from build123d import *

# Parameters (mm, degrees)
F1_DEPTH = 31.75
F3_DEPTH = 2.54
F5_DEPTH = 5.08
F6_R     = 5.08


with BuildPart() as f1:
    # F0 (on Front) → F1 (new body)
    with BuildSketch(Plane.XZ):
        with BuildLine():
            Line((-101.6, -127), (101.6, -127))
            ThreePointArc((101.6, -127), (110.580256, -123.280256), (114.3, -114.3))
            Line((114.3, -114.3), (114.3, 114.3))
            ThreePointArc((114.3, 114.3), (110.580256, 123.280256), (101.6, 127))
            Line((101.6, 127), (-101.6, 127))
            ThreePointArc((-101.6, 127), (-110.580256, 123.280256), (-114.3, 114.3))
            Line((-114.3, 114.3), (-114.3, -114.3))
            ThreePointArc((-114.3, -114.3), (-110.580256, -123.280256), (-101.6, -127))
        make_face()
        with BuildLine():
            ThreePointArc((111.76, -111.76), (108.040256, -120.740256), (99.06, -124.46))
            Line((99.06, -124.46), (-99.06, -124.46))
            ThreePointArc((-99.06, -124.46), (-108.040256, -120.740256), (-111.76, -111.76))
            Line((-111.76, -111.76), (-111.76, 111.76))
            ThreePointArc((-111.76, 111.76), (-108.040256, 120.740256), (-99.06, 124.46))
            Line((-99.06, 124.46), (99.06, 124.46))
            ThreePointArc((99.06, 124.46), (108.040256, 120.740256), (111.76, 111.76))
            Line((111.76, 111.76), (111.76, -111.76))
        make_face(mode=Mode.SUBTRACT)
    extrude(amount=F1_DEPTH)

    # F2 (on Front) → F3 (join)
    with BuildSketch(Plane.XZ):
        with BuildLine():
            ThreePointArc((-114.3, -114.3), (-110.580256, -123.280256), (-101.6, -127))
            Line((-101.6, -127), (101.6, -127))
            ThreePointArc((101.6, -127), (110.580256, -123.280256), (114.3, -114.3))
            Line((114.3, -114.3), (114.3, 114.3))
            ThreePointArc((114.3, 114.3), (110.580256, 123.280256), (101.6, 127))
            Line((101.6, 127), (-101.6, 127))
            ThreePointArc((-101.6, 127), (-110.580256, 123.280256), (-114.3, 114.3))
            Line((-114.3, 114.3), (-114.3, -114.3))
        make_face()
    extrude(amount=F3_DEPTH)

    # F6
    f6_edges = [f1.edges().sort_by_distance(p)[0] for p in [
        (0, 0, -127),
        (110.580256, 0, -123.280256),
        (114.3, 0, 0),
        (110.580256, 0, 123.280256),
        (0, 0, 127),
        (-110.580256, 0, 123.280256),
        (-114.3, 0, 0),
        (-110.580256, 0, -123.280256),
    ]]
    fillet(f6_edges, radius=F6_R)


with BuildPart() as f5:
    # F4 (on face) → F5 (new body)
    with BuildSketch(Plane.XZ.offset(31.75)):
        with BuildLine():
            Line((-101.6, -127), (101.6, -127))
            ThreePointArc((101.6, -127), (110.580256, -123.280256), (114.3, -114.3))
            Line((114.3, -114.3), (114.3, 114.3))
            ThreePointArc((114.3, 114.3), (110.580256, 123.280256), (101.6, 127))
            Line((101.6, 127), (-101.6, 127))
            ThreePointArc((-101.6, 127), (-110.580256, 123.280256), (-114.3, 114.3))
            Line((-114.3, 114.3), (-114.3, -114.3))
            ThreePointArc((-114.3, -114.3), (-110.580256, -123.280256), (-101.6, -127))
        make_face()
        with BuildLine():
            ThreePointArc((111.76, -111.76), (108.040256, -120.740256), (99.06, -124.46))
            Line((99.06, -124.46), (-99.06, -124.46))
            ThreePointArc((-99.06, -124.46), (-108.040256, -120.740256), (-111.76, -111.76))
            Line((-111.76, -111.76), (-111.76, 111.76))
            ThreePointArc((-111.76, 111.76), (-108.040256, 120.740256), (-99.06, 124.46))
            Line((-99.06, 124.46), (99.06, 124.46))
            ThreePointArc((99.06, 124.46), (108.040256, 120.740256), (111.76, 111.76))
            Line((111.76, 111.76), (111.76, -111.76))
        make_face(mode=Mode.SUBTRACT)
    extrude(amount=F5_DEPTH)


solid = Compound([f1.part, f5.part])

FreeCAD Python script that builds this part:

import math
import FreeCAD as App
import Part
import Sketcher
Q = App.Units.Quantity


def edges_at(feature, points):
    """Names of the edges that pass closest to the given points."""
    edges = feature.Shape.Edges
    near = lambda p: min(range(len(edges)), key=lambda i: edges[i].distToShape(Part.Vertex(*p))[0])
    return sorted({f"Edge{near(p) + 1}" for p in points})

doc = App.newDocument("Part")
body = doc.addObject("PartDesign::Body", "Body")

# Sketch on XZ plane
sketch1 = body.newObject("Sketcher::SketchObject", "Sketch")
sketch1.AttachmentSupport = (doc.getObject("XZ_Plane"), [""])
sketch1.MapMode = "FlatFace"
sketch1.addGeometry(Part.LineSegment(App.Vector(-101.6, -127, 0), App.Vector(101.6, -127, 0)), False)
sketch1.addGeometry(Part.ArcOfCircle(Part.Circle(App.Vector(101.6, -114.3, 0), App.Vector(0, 0, 1), 12.7), math.radians(-89.999998), math.radians(-0.000002)), False)
sketch1.addGeometry(Part.LineSegment(App.Vector(114.3, -114.3, 0), App.Vector(114.3, 114.3, 0)), False)
sketch1.addGeometry(Part.ArcOfCircle(Part.Circle(App.Vector(101.6, 114.3, 0), App.Vector(0, 0, 1), 12.7), math.radians(0.000002), math.radians(89.999998)), False)
sketch1.addGeometry(Part.LineSegment(App.Vector(101.6, 127, 0), App.Vector(-101.6, 127, 0)), False)
sketch1.addGeometry(Part.ArcOfCircle(Part.Circle(App.Vector(-101.6, 114.3, 0), App.Vector(0, 0, 1), 12.7), math.radians(90.000002), math.radians(179.999998)), False)
sketch1.addGeometry(Part.LineSegment(App.Vector(-114.3, 114.3, 0), App.Vector(-114.3, -114.3, 0)), False)
sketch1.addGeometry(Part.ArcOfCircle(Part.Circle(App.Vector(-101.6, -114.3, 0), App.Vector(0, 0, 1), 12.7), math.radians(-179.999998), math.radians(-90.000002)), False)
sketch1.addGeometry(Part.LineSegment(App.Vector(111.76, 111.76, 0), App.Vector(111.76, -111.76, 0)), False)
sketch1.addGeometry(Part.ArcOfCircle(Part.Circle(App.Vector(99.06, -111.76, 0), App.Vector(0, 0, 1), 12.7), math.radians(-89.999998), math.radians(-0.000002)), False)
sketch1.addGeometry(Part.LineSegment(App.Vector(99.06, -124.46, 0), App.Vector(-99.06, -124.46, 0)), False)
sketch1.addGeometry(Part.ArcOfCircle(Part.Circle(App.Vector(-99.06, -111.76, 0), App.Vector(0, 0, 1), 12.7), math.radians(-179.999998), math.radians(-90.000002)), False)
sketch1.addGeometry(Part.LineSegment(App.Vector(-111.76, -111.76, 0), App.Vector(-111.76, 111.76, 0)), False)
sketch1.addGeometry(Part.ArcOfCircle(Part.Circle(App.Vector(-99.06, 111.76, 0), App.Vector(0, 0, 1), 12.7), math.radians(90.000002), math.radians(179.999998)), False)
sketch1.addGeometry(Part.LineSegment(App.Vector(-99.06, 124.46, 0), App.Vector(99.06, 124.46, 0)), False)
sketch1.addGeometry(Part.ArcOfCircle(Part.Circle(App.Vector(99.06, 111.76, 0), App.Vector(0, 0, 1), 12.7), math.radians(0.000002), math.radians(89.999998)), False)
sketch1.addConstraint(Sketcher.Constraint("Tangent", 0, 2, 1, 1))
sketch1.addConstraint(Sketcher.Constraint("Tangent", 1, 2, 2, 1))
sketch1.addConstraint(Sketcher.Constraint("Tangent", 2, 2, 3, 1))
sketch1.addConstraint(Sketcher.Constraint("Tangent", 3, 2, 4, 1))
sketch1.addConstraint(Sketcher.Constraint("Tangent", 4, 2, 5, 1))
sketch1.addConstraint(Sketcher.Constraint("Tangent", 5, 2, 6, 1))
sketch1.addConstraint(Sketcher.Constraint("Tangent", 6, 2, 7, 1))
sketch1.addConstraint(Sketcher.Constraint("Tangent", 7, 2, 0, 1))
sketch1.addConstraint(Sketcher.Constraint("Tangent", 8, 2, 9, 2))
sketch1.addConstraint(Sketcher.Constraint("Tangent", 9, 1, 10, 1))
sketch1.addConstraint(Sketcher.Constraint("Tangent", 10, 2, 11, 2))
sketch1.addConstraint(Sketcher.Constraint("Tangent", 11, 1, 12, 1))
sketch1.addConstraint(Sketcher.Constraint("Tangent", 12, 2, 13, 2))
sketch1.addConstraint(Sketcher.Constraint("Tangent", 13, 1, 14, 1))
sketch1.addConstraint(Sketcher.Constraint("Tangent", 14, 2, 15, 2))
sketch1.addConstraint(Sketcher.Constraint("Tangent", 15, 1, 8, 1))
sketch1.addConstraint(Sketcher.Constraint("Horizontal", 0))
sketch1.addConstraint(Sketcher.Constraint("Vertical", 2))
sketch1.addConstraint(Sketcher.Constraint("Horizontal", 4))
sketch1.addConstraint(Sketcher.Constraint("Vertical", 6))
sketch1.addConstraint(Sketcher.Constraint("Vertical", 8))
sketch1.addConstraint(Sketcher.Constraint("Horizontal", 10))
sketch1.addConstraint(Sketcher.Constraint("Vertical", 12))
sketch1.addConstraint(Sketcher.Constraint("Horizontal", 14))
sketch1.addConstraint(Sketcher.Constraint("Equal", 1, 3))
sketch1.addConstraint(Sketcher.Constraint("Equal", 3, 5))
sketch1.addConstraint(Sketcher.Constraint("Equal", 5, 7))
sketch1.addConstraint(Sketcher.Constraint("Equal", 7, 9))
sketch1.addConstraint(Sketcher.Constraint("Equal", 9, 11))
sketch1.addConstraint(Sketcher.Constraint("Equal", 11, 13))
sketch1.addConstraint(Sketcher.Constraint("Equal", 13, 15))
sketch1.addConstraint(Sketcher.Constraint("Symmetric", 1, 3, 5, 3, -1, 1))
sketch1.addConstraint(Sketcher.Constraint("Symmetric", 9, 3, 13, 3, -1, 1))
sketch1.addConstraint(Sketcher.Constraint("Radius", 1, Q("0.5 in")))
sketch1.addConstraint(Sketcher.Constraint("DistanceX", 0, 1, 0, 2, Q("8 in")))
sketch1.addConstraint(Sketcher.Constraint("DistanceY", 2, 1, 2, 2, Q("9 in")))
sketch1.addConstraint(Sketcher.Constraint("DistanceX", 10, 2, 10, 1, Q("7.8 in")))
sketch1.addConstraint(Sketcher.Constraint("DistanceY", 8, 2, 8, 1, Q("8.8 in")))
pad1 = body.newObject("PartDesign::Pad", "Pad")
pad1.Profile = sketch1
pad1.Length = Q("1.25 in")

# Sketch on XZ plane
sketch2 = body.newObject("Sketcher::SketchObject", "Sketch001")
sketch2.AttachmentSupport = (doc.getObject("XZ_Plane"), [""])
sketch2.MapMode = "FlatFace"
sketch2.addGeometry(Part.ArcOfCircle(Part.Circle(App.Vector(-101.6, -114.3, 0), App.Vector(0, 0, 1), 12.7), math.radians(-179.999998), math.radians(-90.000002)), False)
sketch2.addGeometry(Part.LineSegment(App.Vector(-101.6, -127, 0), App.Vector(101.6, -127, 0)), False)
sketch2.addGeometry(Part.ArcOfCircle(Part.Circle(App.Vector(101.6, -114.3, 0), App.Vector(0, 0, 1), 12.7), math.radians(-89.999998), math.radians(-0.000002)), False)
sketch2.addGeometry(Part.LineSegment(App.Vector(114.3, -114.3, 0), App.Vector(114.3, 114.3, 0)), False)
sketch2.addGeometry(Part.ArcOfCircle(Part.Circle(App.Vector(101.6, 114.3, 0), App.Vector(0, 0, 1), 12.7), math.radians(0.000002), math.radians(89.999998)), False)
sketch2.addGeometry(Part.LineSegment(App.Vector(101.6, 127, 0), App.Vector(-101.6, 127, 0)), False)
sketch2.addGeometry(Part.ArcOfCircle(Part.Circle(App.Vector(-101.6, 114.3, 0), App.Vector(0, 0, 1), 12.7), math.radians(90.000002), math.radians(179.999998)), False)
sketch2.addGeometry(Part.LineSegment(App.Vector(-114.3, 114.3, 0), App.Vector(-114.3, -114.3, 0)), False)
sketch2.addConstraint(Sketcher.Constraint("Tangent", 0, 2, 1, 1))
sketch2.addConstraint(Sketcher.Constraint("Tangent", 1, 2, 2, 1))
sketch2.addConstraint(Sketcher.Constraint("Tangent", 2, 2, 3, 1))
sketch2.addConstraint(Sketcher.Constraint("Tangent", 3, 2, 4, 1))
sketch2.addConstraint(Sketcher.Constraint("Tangent", 4, 2, 5, 1))
sketch2.addConstraint(Sketcher.Constraint("Tangent", 5, 2, 6, 1))
sketch2.addConstraint(Sketcher.Constraint("Tangent", 6, 2, 7, 1))
sketch2.addConstraint(Sketcher.Constraint("Tangent", 7, 2, 0, 1))
sketch2.addConstraint(Sketcher.Constraint("Horizontal", 1))
sketch2.addConstraint(Sketcher.Constraint("Vertical", 3))
sketch2.addConstraint(Sketcher.Constraint("Horizontal", 5))
sketch2.addConstraint(Sketcher.Constraint("Vertical", 7))
sketch2.addConstraint(Sketcher.Constraint("Equal", 0, 2))
sketch2.addConstraint(Sketcher.Constraint("Equal", 2, 4))
sketch2.addConstraint(Sketcher.Constraint("Equal", 4, 6))
sketch2.addConstraint(Sketcher.Constraint("Symmetric", 0, 3, 4, 3, -1, 1))
sketch2.addConstraint(Sketcher.Constraint("Radius", 0, Q("0.5 in")))
sketch2.addConstraint(Sketcher.Constraint("DistanceX", 1, 1, 1, 2, Q("8 in")))
sketch2.addConstraint(Sketcher.Constraint("DistanceY", 3, 1, 3, 2, Q("9 in")))
pad2 = body.newObject("PartDesign::Pad", "Pad001")
pad2.Profile = sketch2
pad2.Length = Q("0.1 in")
doc.recompute()

fillet = body.newObject("PartDesign::Fillet", "Fillet")
fillet.Base = (pad2, edges_at(pad2, [
    (0, 0, -127),
    (110.58, 0, -123.28),
    (114.3, 0, 0),
    (110.58, 0, 123.28),
    (0, 0, 127),
    (-110.58, 0, 123.28),
    (-114.3, 0, 0),
    (-110.58, 0, -123.28),
]))
fillet.Radius = Q("0.2 in")
body2 = doc.addObject("PartDesign::Body", "Body001")

# Sketch on XZ plane
sketch3 = body2.newObject("Sketcher::SketchObject", "Sketch002")
sketch3.AttachmentSupport = (doc.getObject("XZ_Plane001"), [""])
sketch3.MapMode = "FlatFace"
sketch3.AttachmentOffset = App.Placement(App.Vector(0, 0, 1.25 * 25.4), App.Rotation())
sketch3.addGeometry(Part.LineSegment(App.Vector(-101.6, -127, 0), App.Vector(101.6, -127, 0)), False)
sketch3.addGeometry(Part.ArcOfCircle(Part.Circle(App.Vector(101.6, -114.3, 0), App.Vector(0, 0, 1), 12.7), math.radians(-89.999998), math.radians(-0.000002)), False)
sketch3.addGeometry(Part.LineSegment(App.Vector(114.3, -114.3, 0), App.Vector(114.3, 114.3, 0)), False)
sketch3.addGeometry(Part.ArcOfCircle(Part.Circle(App.Vector(101.6, 114.3, 0), App.Vector(0, 0, 1), 12.7), math.radians(0.000002), math.radians(89.999998)), False)
sketch3.addGeometry(Part.LineSegment(App.Vector(101.6, 127, 0), App.Vector(-101.6, 127, 0)), False)
sketch3.addGeometry(Part.ArcOfCircle(Part.Circle(App.Vector(-101.6, 114.3, 0), App.Vector(0, 0, 1), 12.7), math.radians(90.000002), math.radians(179.999998)), False)
sketch3.addGeometry(Part.LineSegment(App.Vector(-114.3, 114.3, 0), App.Vector(-114.3, -114.3, 0)), False)
sketch3.addGeometry(Part.ArcOfCircle(Part.Circle(App.Vector(-101.6, -114.3, 0), App.Vector(0, 0, 1), 12.7), math.radians(-179.999998), math.radians(-90.000002)), False)
sketch3.addGeometry(Part.LineSegment(App.Vector(111.76, 111.76, 0), App.Vector(111.76, -111.76, 0)), False)
sketch3.addGeometry(Part.ArcOfCircle(Part.Circle(App.Vector(99.06, -111.76, 0), App.Vector(0, 0, 1), 12.7), math.radians(-89.999998), math.radians(-0.000002)), False)
sketch3.addGeometry(Part.LineSegment(App.Vector(99.06, -124.46, 0), App.Vector(-99.06, -124.46, 0)), False)
sketch3.addGeometry(Part.ArcOfCircle(Part.Circle(App.Vector(-99.06, -111.76, 0), App.Vector(0, 0, 1), 12.7), math.radians(-179.999998), math.radians(-90.000002)), False)
sketch3.addGeometry(Part.LineSegment(App.Vector(-111.76, -111.76, 0), App.Vector(-111.76, 111.76, 0)), False)
sketch3.addGeometry(Part.ArcOfCircle(Part.Circle(App.Vector(-99.06, 111.76, 0), App.Vector(0, 0, 1), 12.7), math.radians(90.000002), math.radians(179.999998)), False)
sketch3.addGeometry(Part.LineSegment(App.Vector(-99.06, 124.46, 0), App.Vector(99.06, 124.46, 0)), False)
sketch3.addGeometry(Part.ArcOfCircle(Part.Circle(App.Vector(99.06, 111.76, 0), App.Vector(0, 0, 1), 12.7), math.radians(0.000002), math.radians(89.999998)), False)
sketch3.addConstraint(Sketcher.Constraint("Tangent", 0, 2, 1, 1))
sketch3.addConstraint(Sketcher.Constraint("Tangent", 1, 2, 2, 1))
sketch3.addConstraint(Sketcher.Constraint("Tangent", 2, 2, 3, 1))
sketch3.addConstraint(Sketcher.Constraint("Tangent", 3, 2, 4, 1))
sketch3.addConstraint(Sketcher.Constraint("Tangent", 4, 2, 5, 1))
sketch3.addConstraint(Sketcher.Constraint("Tangent", 5, 2, 6, 1))
sketch3.addConstraint(Sketcher.Constraint("Tangent", 6, 2, 7, 1))
sketch3.addConstraint(Sketcher.Constraint("Tangent", 7, 2, 0, 1))
sketch3.addConstraint(Sketcher.Constraint("Tangent", 8, 2, 9, 2))
sketch3.addConstraint(Sketcher.Constraint("Tangent", 9, 1, 10, 1))
sketch3.addConstraint(Sketcher.Constraint("Tangent", 10, 2, 11, 2))
sketch3.addConstraint(Sketcher.Constraint("Tangent", 11, 1, 12, 1))
sketch3.addConstraint(Sketcher.Constraint("Tangent", 12, 2, 13, 2))
sketch3.addConstraint(Sketcher.Constraint("Tangent", 13, 1, 14, 1))
sketch3.addConstraint(Sketcher.Constraint("Tangent", 14, 2, 15, 2))
sketch3.addConstraint(Sketcher.Constraint("Tangent", 15, 1, 8, 1))
sketch3.addConstraint(Sketcher.Constraint("Horizontal", 0))
sketch3.addConstraint(Sketcher.Constraint("Vertical", 2))
sketch3.addConstraint(Sketcher.Constraint("Horizontal", 4))
sketch3.addConstraint(Sketcher.Constraint("Vertical", 6))
sketch3.addConstraint(Sketcher.Constraint("Vertical", 8))
sketch3.addConstraint(Sketcher.Constraint("Horizontal", 10))
sketch3.addConstraint(Sketcher.Constraint("Vertical", 12))
sketch3.addConstraint(Sketcher.Constraint("Horizontal", 14))
sketch3.addConstraint(Sketcher.Constraint("Equal", 1, 3))
sketch3.addConstraint(Sketcher.Constraint("Equal", 3, 5))
sketch3.addConstraint(Sketcher.Constraint("Equal", 5, 7))
sketch3.addConstraint(Sketcher.Constraint("Equal", 7, 9))
sketch3.addConstraint(Sketcher.Constraint("Equal", 9, 11))
sketch3.addConstraint(Sketcher.Constraint("Equal", 11, 13))
sketch3.addConstraint(Sketcher.Constraint("Equal", 13, 15))
sketch3.addConstraint(Sketcher.Constraint("Symmetric", 1, 3, 5, 3, -1, 1))
sketch3.addConstraint(Sketcher.Constraint("Symmetric", 9, 3, 13, 3, -1, 1))
sketch3.addConstraint(Sketcher.Constraint("Radius", 1, Q("0.5 in")))
sketch3.addConstraint(Sketcher.Constraint("DistanceX", 0, 1, 0, 2, Q("8 in")))
sketch3.addConstraint(Sketcher.Constraint("DistanceY", 2, 1, 2, 2, Q("9 in")))
sketch3.addConstraint(Sketcher.Constraint("DistanceX", 10, 2, 10, 1, Q("7.8 in")))
sketch3.addConstraint(Sketcher.Constraint("DistanceY", 8, 2, 8, 1, Q("8.8 in")))
pad3 = body2.newObject("PartDesign::Pad", "Pad002")
pad3.Profile = sketch3
pad3.Length = Q("0.2 in")

doc.recompute()
